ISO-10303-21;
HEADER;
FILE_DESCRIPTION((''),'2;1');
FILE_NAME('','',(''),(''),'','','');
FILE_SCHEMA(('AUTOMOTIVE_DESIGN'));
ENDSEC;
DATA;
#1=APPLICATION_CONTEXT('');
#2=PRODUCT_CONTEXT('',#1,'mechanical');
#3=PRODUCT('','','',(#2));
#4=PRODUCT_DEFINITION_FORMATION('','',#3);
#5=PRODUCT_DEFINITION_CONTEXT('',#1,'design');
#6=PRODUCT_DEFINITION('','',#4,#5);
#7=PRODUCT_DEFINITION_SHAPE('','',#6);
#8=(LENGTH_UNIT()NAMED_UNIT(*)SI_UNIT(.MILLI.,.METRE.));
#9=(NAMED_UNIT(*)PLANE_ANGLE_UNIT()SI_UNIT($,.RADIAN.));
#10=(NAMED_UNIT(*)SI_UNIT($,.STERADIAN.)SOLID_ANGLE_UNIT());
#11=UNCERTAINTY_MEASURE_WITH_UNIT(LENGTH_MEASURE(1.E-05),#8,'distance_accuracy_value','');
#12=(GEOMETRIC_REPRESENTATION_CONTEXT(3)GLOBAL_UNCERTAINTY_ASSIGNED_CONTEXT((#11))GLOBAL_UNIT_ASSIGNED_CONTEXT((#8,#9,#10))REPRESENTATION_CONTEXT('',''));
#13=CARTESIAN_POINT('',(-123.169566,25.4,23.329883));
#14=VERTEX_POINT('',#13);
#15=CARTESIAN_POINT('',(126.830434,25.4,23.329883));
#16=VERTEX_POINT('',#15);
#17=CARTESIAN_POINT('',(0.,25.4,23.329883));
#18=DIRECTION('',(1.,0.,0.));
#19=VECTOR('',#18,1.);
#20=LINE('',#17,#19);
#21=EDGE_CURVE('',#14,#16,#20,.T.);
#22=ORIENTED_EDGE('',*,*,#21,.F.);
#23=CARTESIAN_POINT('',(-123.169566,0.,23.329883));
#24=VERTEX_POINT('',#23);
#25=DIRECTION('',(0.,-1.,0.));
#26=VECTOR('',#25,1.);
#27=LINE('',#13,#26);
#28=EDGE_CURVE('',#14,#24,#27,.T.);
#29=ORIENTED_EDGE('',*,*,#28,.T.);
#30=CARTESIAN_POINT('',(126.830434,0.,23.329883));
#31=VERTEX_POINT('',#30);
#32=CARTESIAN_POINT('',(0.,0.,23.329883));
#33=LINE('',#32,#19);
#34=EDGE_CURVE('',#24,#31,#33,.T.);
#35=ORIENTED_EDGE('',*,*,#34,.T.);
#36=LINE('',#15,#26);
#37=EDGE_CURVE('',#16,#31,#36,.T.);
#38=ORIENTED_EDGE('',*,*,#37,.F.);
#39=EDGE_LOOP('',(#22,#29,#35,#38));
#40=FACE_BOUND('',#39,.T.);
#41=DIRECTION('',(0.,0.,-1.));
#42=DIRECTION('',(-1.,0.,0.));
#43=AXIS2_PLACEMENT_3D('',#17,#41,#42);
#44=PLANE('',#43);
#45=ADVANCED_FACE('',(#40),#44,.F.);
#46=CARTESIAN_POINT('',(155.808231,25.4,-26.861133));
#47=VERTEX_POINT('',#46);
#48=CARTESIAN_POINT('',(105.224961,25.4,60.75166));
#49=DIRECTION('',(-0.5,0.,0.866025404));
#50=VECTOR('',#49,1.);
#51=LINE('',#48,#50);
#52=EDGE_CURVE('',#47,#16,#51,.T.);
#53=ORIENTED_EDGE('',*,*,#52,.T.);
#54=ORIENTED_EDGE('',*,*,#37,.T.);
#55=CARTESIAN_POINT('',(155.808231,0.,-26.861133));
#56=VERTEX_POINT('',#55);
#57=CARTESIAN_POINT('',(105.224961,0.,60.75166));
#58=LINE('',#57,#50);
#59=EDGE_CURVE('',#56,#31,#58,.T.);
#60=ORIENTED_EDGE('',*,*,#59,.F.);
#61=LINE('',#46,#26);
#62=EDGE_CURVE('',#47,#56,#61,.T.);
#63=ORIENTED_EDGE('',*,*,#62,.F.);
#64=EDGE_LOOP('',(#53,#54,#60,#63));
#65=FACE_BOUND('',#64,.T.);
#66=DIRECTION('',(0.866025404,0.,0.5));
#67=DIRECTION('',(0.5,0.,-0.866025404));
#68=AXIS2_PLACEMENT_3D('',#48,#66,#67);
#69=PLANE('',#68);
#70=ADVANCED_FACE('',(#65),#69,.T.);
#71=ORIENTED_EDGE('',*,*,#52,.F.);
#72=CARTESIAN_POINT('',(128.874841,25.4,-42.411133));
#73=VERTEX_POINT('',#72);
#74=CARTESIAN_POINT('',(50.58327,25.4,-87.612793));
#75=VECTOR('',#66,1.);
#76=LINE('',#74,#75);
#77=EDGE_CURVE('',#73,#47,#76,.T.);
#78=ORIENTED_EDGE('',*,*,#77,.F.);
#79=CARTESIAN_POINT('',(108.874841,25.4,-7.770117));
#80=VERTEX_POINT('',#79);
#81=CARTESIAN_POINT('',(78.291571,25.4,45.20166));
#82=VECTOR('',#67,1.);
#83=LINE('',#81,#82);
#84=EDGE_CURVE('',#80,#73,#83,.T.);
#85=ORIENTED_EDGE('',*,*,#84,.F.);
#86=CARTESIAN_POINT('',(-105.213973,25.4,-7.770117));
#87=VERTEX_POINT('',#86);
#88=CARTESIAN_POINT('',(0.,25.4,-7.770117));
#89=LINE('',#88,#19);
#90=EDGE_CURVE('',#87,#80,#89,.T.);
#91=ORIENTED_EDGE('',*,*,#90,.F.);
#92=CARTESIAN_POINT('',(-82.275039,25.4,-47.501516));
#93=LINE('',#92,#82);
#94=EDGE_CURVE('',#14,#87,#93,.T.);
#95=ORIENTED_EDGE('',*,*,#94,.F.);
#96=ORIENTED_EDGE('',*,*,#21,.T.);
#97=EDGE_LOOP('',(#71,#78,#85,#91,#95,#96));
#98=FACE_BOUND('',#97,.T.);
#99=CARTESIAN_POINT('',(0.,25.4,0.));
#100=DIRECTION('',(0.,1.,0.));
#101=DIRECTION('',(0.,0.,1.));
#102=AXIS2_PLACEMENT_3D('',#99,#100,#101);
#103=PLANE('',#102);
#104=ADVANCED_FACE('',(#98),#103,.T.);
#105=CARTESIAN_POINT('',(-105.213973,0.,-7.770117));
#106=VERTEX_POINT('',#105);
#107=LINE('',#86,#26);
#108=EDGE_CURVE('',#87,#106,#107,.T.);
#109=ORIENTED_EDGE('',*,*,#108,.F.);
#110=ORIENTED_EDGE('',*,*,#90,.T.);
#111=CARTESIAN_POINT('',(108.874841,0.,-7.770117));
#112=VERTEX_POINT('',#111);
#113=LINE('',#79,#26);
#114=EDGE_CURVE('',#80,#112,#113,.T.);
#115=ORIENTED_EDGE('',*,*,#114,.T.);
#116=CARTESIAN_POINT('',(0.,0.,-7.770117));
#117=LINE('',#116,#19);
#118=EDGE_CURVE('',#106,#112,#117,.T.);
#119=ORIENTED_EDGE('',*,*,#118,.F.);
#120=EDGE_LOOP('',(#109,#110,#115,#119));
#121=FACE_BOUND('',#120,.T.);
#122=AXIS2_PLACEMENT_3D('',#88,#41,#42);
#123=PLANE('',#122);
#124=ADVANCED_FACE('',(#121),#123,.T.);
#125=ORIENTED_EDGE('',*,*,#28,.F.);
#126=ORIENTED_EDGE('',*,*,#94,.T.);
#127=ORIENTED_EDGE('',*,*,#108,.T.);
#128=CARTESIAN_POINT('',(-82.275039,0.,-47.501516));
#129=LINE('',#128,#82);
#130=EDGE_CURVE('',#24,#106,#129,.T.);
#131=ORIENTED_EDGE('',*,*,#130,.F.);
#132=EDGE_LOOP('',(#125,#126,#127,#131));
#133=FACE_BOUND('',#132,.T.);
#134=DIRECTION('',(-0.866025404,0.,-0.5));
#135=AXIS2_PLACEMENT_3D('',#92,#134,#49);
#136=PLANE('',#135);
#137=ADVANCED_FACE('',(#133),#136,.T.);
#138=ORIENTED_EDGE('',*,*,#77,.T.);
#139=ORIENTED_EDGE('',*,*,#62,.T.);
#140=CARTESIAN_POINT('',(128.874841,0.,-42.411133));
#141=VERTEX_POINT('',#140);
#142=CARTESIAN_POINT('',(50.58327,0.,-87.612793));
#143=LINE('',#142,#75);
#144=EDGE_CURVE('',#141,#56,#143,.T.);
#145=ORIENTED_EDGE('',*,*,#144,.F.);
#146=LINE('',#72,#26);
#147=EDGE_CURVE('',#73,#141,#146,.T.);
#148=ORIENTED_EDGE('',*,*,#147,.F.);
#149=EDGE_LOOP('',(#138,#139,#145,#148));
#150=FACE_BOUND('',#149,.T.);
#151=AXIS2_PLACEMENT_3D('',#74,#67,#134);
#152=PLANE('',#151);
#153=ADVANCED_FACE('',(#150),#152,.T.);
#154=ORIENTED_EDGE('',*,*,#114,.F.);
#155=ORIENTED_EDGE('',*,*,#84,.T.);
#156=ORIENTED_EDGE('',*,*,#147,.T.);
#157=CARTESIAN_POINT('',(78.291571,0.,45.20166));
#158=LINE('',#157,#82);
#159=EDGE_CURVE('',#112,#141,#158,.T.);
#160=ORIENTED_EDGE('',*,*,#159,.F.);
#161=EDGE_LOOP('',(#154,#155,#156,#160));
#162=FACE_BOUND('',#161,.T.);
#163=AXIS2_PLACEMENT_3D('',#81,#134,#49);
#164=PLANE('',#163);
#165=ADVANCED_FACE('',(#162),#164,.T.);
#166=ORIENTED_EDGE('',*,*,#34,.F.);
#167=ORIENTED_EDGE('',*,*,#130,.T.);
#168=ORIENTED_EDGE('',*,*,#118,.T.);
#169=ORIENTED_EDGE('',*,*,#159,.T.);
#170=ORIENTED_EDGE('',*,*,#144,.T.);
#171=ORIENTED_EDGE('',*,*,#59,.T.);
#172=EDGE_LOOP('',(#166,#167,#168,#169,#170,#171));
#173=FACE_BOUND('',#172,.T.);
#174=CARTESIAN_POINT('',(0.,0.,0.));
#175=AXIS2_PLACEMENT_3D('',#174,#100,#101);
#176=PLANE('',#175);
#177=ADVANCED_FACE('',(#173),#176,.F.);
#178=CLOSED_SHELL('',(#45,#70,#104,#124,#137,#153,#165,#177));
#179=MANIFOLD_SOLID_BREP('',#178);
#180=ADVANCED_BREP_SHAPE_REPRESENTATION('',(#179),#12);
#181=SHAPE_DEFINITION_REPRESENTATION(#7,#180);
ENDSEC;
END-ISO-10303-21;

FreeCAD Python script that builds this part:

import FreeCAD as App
import Part
import Sketcher

V = App.Vector
Q = App.Units.Quantity

doc = App.newDocument("Part")
body = doc.addObject("PartDesign::Body", "Body")

sketch1 = body.newObject("Sketcher::SketchObject", "Sketch")
sketch1.AttachmentSupport = (doc.getObject("XZ_Plane"), [""])
sketch1.MapMode = "FlatFace"
sketch1.addGeometry([
    Part.LineSegment(V(-123, 23, 0), V(127, 23, 0)),
    Part.LineSegment(V(127, 23, 0), V(156, -27, 0)),
    Part.LineSegment(V(156, -27, 0), V(129, -42, 0)),
    Part.LineSegment(V(129, -42, 0), V(109, -8, 0)),
    Part.LineSegment(V(109, -8, 0), V(-105, -8, 0)),
    Part.LineSegment(V(-105, -8, 0), V(-123, 23, 0)),
], False)
sketch1.addConstraint([
    Sketcher.Constraint("Coincident", 0, 2, 1, 1),
    Sketcher.Constraint("Coincident", 1, 2, 2, 1),
    Sketcher.Constraint("Coincident", 2, 2, 3, 1),
    Sketcher.Constraint("Coincident", 3, 2, 4, 1),
    Sketcher.Constraint("Coincident", 4, 2, 5, 1),
    Sketcher.Constraint("Coincident", 5, 2, 0, 1),
    Sketcher.Constraint("Horizontal", 0),
    Sketcher.Constraint("Horizontal", 4),
    Sketcher.Constraint("Perpendicular", 1, 2),
    Sketcher.Constraint("Perpendicular", 2, 3),
    Sketcher.Constraint("Parallel", 3, 5),
    Sketcher.Constraint("DistanceX", 0, 1, 0, 2, 250.0),
    Sketcher.Constraint("Angle", 1, Q("-60 deg")),
    Sketcher.Constraint("Distance", 3, 40.0),
    Sketcher.Constraint("Distance", 2, 31.1),
    Sketcher.Constraint("DistanceY", 3, 2, 0, 2, 31.1),
    Sketcher.Constraint("DistanceX", -1, 1, 1, 2, 155.808231),
    Sketcher.Constraint("DistanceY", -1, 1, 0, 2, 23.329883),
])
pad1 = body.newObject("PartDesign::Pad", "Pad")
pad1.Profile = sketch1
pad1.Length = 25.4
pad1.Reversed = True

doc.recompute()
